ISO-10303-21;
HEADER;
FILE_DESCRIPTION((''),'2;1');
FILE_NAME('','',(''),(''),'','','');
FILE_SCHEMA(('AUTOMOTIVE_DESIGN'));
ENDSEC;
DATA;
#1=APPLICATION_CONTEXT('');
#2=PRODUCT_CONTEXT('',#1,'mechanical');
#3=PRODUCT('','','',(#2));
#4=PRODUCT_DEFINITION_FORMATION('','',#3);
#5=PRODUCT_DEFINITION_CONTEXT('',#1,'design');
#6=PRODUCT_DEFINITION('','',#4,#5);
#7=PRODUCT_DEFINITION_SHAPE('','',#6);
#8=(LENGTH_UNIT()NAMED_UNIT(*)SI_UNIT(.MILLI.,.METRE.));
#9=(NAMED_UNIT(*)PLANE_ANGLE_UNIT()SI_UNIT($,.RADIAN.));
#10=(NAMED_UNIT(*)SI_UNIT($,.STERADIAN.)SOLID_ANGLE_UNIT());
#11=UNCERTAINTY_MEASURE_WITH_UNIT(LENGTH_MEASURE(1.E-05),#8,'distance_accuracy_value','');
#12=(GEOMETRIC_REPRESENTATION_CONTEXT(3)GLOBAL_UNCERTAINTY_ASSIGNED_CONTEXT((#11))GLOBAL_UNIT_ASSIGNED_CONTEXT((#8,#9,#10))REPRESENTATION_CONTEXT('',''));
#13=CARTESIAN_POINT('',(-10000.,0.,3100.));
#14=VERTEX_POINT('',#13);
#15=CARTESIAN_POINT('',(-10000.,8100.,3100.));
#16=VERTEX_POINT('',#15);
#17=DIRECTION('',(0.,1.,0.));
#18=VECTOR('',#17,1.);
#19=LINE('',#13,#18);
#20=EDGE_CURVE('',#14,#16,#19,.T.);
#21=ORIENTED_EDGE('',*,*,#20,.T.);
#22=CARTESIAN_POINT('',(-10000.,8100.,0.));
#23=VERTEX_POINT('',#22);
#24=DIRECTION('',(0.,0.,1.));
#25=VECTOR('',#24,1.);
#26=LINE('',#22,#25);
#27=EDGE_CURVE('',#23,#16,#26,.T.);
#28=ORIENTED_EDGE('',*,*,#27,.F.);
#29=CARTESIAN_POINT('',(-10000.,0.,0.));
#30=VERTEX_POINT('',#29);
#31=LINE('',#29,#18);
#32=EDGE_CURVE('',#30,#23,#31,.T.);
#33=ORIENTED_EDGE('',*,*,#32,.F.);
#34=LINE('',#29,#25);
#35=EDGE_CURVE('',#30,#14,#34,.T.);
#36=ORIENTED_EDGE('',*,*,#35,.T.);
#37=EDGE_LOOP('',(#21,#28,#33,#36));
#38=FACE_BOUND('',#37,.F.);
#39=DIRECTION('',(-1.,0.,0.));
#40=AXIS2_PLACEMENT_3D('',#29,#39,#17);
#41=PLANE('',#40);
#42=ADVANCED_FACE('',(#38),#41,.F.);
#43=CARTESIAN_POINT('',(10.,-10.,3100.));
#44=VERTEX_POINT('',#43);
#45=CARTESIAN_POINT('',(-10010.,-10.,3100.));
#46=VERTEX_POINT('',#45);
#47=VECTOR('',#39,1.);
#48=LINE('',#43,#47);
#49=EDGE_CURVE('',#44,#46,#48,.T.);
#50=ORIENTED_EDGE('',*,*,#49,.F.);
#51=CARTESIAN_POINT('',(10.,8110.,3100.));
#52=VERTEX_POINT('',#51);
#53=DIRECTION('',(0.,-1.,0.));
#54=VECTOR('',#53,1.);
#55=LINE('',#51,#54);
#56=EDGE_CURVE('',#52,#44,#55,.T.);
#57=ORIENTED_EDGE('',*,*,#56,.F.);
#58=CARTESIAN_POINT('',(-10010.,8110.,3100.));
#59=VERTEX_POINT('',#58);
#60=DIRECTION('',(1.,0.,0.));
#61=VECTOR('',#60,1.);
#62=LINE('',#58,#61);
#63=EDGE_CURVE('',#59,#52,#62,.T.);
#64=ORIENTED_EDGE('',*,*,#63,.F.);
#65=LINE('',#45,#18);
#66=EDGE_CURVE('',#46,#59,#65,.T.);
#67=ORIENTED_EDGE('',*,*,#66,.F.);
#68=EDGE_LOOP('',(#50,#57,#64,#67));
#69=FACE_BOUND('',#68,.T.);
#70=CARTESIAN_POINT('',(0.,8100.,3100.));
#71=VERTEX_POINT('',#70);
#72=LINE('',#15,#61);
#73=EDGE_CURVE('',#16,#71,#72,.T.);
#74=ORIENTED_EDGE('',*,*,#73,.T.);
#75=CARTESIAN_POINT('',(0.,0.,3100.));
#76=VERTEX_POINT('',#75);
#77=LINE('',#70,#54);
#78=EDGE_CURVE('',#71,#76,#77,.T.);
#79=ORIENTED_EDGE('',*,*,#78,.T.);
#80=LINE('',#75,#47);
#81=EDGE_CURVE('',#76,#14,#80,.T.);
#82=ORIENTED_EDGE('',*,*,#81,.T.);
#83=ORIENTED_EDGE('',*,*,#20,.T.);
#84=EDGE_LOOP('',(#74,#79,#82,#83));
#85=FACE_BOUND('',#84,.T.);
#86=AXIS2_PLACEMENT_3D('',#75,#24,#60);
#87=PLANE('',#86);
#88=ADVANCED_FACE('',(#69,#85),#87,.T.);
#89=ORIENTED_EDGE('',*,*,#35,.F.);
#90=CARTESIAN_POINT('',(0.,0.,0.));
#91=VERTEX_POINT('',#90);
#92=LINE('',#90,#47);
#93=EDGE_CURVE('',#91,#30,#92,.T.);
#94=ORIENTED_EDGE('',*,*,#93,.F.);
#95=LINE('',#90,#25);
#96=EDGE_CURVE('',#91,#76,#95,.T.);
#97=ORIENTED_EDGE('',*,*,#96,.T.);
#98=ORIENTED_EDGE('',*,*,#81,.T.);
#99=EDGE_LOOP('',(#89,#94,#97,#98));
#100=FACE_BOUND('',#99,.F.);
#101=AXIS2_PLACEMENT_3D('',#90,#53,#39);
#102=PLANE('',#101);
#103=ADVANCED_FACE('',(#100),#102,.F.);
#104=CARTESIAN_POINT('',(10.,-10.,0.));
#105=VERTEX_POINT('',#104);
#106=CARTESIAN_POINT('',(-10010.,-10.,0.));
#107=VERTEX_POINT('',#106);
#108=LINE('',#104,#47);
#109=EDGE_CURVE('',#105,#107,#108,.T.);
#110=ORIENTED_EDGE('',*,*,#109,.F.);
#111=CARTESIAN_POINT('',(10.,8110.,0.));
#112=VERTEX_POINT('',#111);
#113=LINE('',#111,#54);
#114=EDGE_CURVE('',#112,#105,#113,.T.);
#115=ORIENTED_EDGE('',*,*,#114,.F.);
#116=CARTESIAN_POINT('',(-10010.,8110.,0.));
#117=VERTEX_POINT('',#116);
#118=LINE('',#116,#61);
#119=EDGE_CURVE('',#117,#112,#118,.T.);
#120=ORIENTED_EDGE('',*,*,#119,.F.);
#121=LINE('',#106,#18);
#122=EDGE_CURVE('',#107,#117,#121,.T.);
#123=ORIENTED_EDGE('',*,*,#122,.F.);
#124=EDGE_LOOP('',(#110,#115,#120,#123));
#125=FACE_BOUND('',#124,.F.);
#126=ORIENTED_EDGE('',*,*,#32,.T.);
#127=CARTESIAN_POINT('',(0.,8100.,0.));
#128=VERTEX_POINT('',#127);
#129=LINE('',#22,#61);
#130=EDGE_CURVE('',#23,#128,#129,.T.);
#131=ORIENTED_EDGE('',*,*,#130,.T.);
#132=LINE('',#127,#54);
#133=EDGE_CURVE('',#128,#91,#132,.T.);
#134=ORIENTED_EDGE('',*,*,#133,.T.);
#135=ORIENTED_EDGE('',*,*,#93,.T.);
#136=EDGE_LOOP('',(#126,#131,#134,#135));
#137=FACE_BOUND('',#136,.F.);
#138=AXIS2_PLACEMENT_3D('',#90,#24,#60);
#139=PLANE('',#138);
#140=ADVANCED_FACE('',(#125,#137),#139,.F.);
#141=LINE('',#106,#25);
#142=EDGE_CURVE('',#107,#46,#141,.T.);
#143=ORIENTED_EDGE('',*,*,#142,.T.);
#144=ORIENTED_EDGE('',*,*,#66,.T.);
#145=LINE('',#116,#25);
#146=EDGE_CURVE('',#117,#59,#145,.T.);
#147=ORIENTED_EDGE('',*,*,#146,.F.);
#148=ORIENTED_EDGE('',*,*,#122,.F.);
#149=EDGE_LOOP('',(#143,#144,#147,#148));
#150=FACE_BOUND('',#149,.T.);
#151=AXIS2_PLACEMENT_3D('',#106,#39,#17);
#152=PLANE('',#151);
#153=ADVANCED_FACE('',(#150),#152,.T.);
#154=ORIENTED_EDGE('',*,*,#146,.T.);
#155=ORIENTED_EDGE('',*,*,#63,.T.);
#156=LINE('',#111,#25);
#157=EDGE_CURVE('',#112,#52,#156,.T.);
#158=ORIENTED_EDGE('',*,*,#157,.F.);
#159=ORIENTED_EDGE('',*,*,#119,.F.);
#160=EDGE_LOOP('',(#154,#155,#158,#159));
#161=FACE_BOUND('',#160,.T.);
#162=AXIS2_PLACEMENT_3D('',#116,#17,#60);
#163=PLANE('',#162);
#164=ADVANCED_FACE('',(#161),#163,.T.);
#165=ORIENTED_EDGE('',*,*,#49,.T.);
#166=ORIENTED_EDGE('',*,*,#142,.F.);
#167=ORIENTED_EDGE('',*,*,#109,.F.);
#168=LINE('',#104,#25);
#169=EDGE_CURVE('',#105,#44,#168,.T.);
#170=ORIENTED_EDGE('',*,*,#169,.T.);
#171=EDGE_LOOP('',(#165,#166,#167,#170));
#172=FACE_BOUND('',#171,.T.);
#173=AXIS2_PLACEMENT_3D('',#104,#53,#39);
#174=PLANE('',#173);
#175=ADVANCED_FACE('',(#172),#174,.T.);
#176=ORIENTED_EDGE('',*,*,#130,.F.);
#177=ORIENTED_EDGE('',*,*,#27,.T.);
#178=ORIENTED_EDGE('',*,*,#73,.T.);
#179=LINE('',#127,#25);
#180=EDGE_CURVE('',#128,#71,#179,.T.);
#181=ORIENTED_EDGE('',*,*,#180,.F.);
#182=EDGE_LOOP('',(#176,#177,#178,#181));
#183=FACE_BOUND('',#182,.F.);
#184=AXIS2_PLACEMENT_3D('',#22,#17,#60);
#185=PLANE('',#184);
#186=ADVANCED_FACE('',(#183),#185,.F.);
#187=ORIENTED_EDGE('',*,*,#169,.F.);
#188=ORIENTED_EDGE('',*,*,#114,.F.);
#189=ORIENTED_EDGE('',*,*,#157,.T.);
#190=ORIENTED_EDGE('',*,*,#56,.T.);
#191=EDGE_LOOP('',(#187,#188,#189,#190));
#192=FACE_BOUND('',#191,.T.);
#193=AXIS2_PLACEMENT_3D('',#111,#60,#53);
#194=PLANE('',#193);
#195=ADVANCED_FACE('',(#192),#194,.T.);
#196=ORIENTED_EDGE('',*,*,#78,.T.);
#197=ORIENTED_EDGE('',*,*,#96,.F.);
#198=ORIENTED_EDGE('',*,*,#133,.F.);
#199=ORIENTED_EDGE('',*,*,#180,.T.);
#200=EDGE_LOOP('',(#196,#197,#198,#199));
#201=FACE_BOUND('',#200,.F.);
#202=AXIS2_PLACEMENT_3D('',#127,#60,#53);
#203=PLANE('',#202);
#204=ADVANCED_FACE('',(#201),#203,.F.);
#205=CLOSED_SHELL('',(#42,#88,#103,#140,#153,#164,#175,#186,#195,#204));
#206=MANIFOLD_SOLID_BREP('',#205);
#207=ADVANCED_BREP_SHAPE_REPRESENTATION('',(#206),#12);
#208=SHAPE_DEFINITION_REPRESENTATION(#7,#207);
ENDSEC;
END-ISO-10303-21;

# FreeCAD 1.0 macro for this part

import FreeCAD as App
import Part
import Sketcher
Q = App.Units.Quantity


def add_polygon(sketch, points):
    """Adds a closed chain of lines whose ends are joined by coincident constraints."""
    first, n = sketch.GeometryCount, len(points)
    for a, b in zip(points, points[1:] + points[:1]):
        sketch.addGeometry(Part.LineSegment(App.Vector(*a, 0), App.Vector(*b, 0)), False)
    for i in range(n):
        sketch.addConstraint(Sketcher.Constraint("Coincident", first + i, 2, first + (i + 1) % n, 1))

doc = App.newDocument("Part")
body = doc.addObject("PartDesign::Body", "Body")

# Sketch on XY plane
sketch1 = body.newObject("Sketcher::SketchObject", "Sketch")
sketch1.AttachmentSupport = (doc.getObject("XY_Plane"), [""])
sketch1.MapMode = "FlatFace"
add_polygon(sketch1, [(-10010, -10), (10, -10), (10, 8110), (-10010, 8110)])  # lines 0-3
add_polygon(sketch1, [(0, 8100), (0, 0), (-10000, 0), (-10000, 8100)])  # lines 4-7
sketch1.addConstraint(Sketcher.Constraint("Horizontal", 0))
sketch1.addConstraint(Sketcher.Constraint("Vertical", 1))
sketch1.addConstraint(Sketcher.Constraint("Horizontal", 2))
sketch1.addConstraint(Sketcher.Constraint("Vertical", 3))
sketch1.addConstraint(Sketcher.Constraint("Vertical", 4))
sketch1.addConstraint(Sketcher.Constraint("Horizontal", 5))
sketch1.addConstraint(Sketcher.Constraint("Vertical", 6))
sketch1.addConstraint(Sketcher.Constraint("Horizontal", 7))
sketch1.addConstraint(Sketcher.Constraint("Coincident", 4, 2, -1, 1))
sketch1.addConstraint(Sketcher.Constraint("DistanceX", 0, 1, 0, 2, Q("10020 mm")))
sketch1.addConstraint(Sketcher.Constraint("DistanceX", 5, 2, 5, 1, Q("10000 mm")))
sketch1.addConstraint(Sketcher.Constraint("DistanceY", 1, 1, 1, 2, Q("8120 mm")))
sketch1.addConstraint(Sketcher.Constraint("DistanceY", 4, 2, 4, 1, Q("8100 mm")))
sketch1.addConstraint(Sketcher.Constraint("DistanceX", -1, 1, 0, 2, Q("10 mm")))
sketch1.addConstraint(Sketcher.Constraint("DistanceY", 0, 2, -1, 1, Q("10 mm")))
pad1 = body.newObject("PartDesign::Pad", "Pad")
pad1.Profile = sketch1
pad1.Length = 3100

doc.recompute()
